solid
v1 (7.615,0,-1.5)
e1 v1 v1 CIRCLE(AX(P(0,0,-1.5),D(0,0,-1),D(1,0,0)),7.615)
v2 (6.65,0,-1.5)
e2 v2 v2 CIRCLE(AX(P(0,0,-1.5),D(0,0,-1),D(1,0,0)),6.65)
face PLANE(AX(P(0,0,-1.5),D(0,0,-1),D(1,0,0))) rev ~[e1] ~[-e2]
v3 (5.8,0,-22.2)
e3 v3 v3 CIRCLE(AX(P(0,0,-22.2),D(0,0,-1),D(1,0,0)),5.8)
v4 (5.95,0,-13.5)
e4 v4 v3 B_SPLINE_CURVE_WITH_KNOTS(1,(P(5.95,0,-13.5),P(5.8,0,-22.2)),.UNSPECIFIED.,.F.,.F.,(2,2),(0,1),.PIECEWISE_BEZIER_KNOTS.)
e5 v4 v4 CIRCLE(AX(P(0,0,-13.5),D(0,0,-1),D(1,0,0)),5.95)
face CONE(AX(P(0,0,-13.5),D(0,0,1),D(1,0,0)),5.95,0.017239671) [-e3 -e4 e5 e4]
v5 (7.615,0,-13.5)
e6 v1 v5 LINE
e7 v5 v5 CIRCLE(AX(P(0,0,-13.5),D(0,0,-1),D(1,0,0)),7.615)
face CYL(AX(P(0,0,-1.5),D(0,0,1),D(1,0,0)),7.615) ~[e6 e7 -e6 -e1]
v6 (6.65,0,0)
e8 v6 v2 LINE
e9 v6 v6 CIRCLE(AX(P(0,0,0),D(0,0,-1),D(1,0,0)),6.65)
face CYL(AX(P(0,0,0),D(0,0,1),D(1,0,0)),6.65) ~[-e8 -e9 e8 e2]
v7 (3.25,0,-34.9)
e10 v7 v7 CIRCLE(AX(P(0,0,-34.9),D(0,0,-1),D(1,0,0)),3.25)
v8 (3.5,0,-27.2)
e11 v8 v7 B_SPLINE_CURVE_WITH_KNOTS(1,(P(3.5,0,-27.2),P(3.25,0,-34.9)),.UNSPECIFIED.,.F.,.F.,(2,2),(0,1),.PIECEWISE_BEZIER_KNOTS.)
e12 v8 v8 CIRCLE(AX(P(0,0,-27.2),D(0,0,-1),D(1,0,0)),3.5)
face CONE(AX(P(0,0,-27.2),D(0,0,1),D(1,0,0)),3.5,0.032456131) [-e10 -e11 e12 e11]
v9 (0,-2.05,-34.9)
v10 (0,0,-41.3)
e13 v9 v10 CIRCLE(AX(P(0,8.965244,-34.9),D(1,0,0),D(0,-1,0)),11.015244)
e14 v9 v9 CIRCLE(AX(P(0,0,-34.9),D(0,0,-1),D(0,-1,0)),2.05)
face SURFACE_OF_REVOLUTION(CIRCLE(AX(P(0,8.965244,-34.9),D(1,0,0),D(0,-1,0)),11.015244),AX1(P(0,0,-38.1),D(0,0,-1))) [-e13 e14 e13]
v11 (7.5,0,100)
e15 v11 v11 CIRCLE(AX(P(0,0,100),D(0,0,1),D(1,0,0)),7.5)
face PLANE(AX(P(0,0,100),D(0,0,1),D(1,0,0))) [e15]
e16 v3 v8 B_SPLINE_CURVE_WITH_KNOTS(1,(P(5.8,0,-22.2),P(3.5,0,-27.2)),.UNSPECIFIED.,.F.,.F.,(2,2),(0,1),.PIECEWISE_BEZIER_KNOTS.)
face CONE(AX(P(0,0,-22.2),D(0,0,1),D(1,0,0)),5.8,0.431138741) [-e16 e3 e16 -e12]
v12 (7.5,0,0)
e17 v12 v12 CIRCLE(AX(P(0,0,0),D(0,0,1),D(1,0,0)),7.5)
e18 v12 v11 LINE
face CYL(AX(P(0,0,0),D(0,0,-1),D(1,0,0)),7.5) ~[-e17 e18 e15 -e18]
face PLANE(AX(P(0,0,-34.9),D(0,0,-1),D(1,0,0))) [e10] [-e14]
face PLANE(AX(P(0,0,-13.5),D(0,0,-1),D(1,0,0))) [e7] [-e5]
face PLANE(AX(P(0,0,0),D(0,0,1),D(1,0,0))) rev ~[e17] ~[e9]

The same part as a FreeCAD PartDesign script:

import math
import FreeCAD as App
import Part
import Sketcher
Q = App.Units.Quantity

doc = App.newDocument("Part")
body = doc.addObject("PartDesign::Body", "Body")

# Sketch on XY plane
sketch1 = body.newObject("Sketcher::SketchObject", "Sketch")
sketch1.AttachmentSupport = (doc.getObject("XY_Plane"), [""])
sketch1.MapMode = "FlatFace"
sketch1.addGeometry(Part.Circle(App.Vector(0, 0, 0), App.Vector(0, 0, 1), 8), False)
sketch1.addConstraint([
    Sketcher.Constraint("Coincident", 0, 3, -1, 1),
    Sketcher.Constraint("Diameter", 0, Q("15 mm")),
])
pad1 = body.newObject("PartDesign::Pad", "Pad")
pad1.Profile = sketch1
pad1.Length = 100

# Sketch on XY plane
sketch2 = body.newObject("Sketcher::SketchObject", "Sketch001")
sketch2.AttachmentSupport = (doc.getObject("XY_Plane"), [""])
sketch2.MapMode = "FlatFace"
sketch2.addGeometry(Part.Circle(App.Vector(0, 0, 0), App.Vector(0, 0, 1), 7), False)
sketch2.addConstraint([
    Sketcher.Constraint("Coincident", 0, 3, -1, 1),
    Sketcher.Constraint("Diameter", 0, Q("13.3 mm")),
])
pad2 = body.newObject("PartDesign::Pad", "Pad001")
pad2.Profile = sketch2
pad2.Length = 1.5
pad2.Reversed = True

# Sketch on XY plane
sketch3 = body.newObject("Sketcher::SketchObject", "Sketch002")
sketch3.AttachmentSupport = (doc.getObject("XY_Plane"), [""])
sketch3.MapMode = "FlatFace"
sketch3.AttachmentOffset = App.Placement(App.Vector(0, 0, -1.5), App.Rotation())
sketch3.addGeometry(Part.Circle(App.Vector(0, 0, 0), App.Vector(0, 0, 1), 8), False)
sketch3.addConstraint([
    Sketcher.Constraint("Coincident", 0, 3, -1, 1),
    Sketcher.Constraint("Diameter", 0, Q("15.23 mm")),
])
pad3 = body.newObject("PartDesign::Pad", "Pad002")
pad3.Profile = sketch3
pad3.Length = 12
pad3.Reversed = True

# Sketch on XY plane
sketch4 = body.newObject("Sketcher::SketchObject", "Sketch003")
sketch4.AttachmentSupport = (doc.getObject("XY_Plane"), [""])
sketch4.MapMode = "FlatFace"
sketch4.AttachmentOffset = App.Placement(App.Vector(0, 0, -13.5), App.Rotation())
sketch4.addGeometry(Part.Circle(App.Vector(0, 0, 0), App.Vector(0, 0, 1), 6), False)
sketch4.addConstraint([
    Sketcher.Constraint("Coincident", 0, 3, -1, 1),
    Sketcher.Constraint("Diameter", 0, Q("11.9 mm")),
])

# Sketch on XY plane
sketch5 = body.newObject("Sketcher::SketchObject", "Sketch004")
sketch5.AttachmentSupport = (doc.getObject("XY_Plane"), [""])
sketch5.MapMode = "FlatFace"
sketch5.AttachmentOffset = App.Placement(App.Vector(0, 0, -22.2), App.Rotation())
sketch5.addGeometry(Part.Circle(App.Vector(0, 0, 0), App.Vector(0, 0, 1), 6), False)
sketch5.addConstraint([
    Sketcher.Constraint("Coincident", 0, 3, -1, 1),
    Sketcher.Constraint("Diameter", 0, Q("11.6 mm")),
])

additiveloft = body.newObject("PartDesign::AdditiveLoft", "AdditiveLoft")
additiveloft.Profile = sketch4
additiveloft.Sections = [sketch5]

# Sketch on XY plane
sketch6 = body.newObject("Sketcher::SketchObject", "Sketch005")
sketch6.AttachmentSupport = (doc.getObject("XY_Plane"), [""])
sketch6.MapMode = "FlatFace"
sketch6.AttachmentOffset = App.Placement(App.Vector(0, 0, -22.2), App.Rotation())
sketch6.addGeometry(Part.Circle(App.Vector(0, 0, 0), App.Vector(0, 0, 1), 6), False)
sketch6.addConstraint([
    Sketcher.Constraint("Coincident", 0, 3, -1, 1),
    Sketcher.Constraint("Diameter", 0, Q("11.6 mm")),
])

# Sketch on XY plane
sketch7 = body.newObject("Sketcher::SketchObject", "Sketch006")
sketch7.AttachmentSupport = (doc.getObject("XY_Plane"), [""])
sketch7.MapMode = "FlatFace"
sketch7.AttachmentOffset = App.Placement(App.Vector(0, 0, -27.2), App.Rotation())
sketch7.addGeometry(Part.Circle(App.Vector(0, 0, 0), App.Vector(0, 0, 1), 3.5), False)
sketch7.addConstraint([
    Sketcher.Constraint("Coincident", 0, 3, -1, 1),
    Sketcher.Constraint("Diameter", 0, Q("7 mm")),
])

additiveloft2 = body.newObject("PartDesign::AdditiveLoft", "AdditiveLoft001")
additiveloft2.Profile = sketch6
additiveloft2.Sections = [sketch7]

# Sketch on XY plane
sketch8 = body.newObject("Sketcher::SketchObject", "Sketch007")
sketch8.AttachmentSupport = (doc.getObject("XY_Plane"), [""])
sketch8.MapMode = "FlatFace"
sketch8.AttachmentOffset = App.Placement(App.Vector(0, 0, -27.2), App.Rotation())
sketch8.addGeometry(Part.Circle(App.Vector(0, 0, 0), App.Vector(0, 0, 1), 3.5), False)
sketch8.addConstraint([
    Sketcher.Constraint("Coincident", 0, 3, -1, 1),
    Sketcher.Constraint("Diameter", 0, Q("7 mm")),
])

# Sketch on XY plane
sketch9 = body.newObject("Sketcher::SketchObject", "Sketch008")
sketch9.AttachmentSupport = (doc.getObject("XY_Plane"), [""])
sketch9.MapMode = "FlatFace"
sketch9.AttachmentOffset = App.Placement(App.Vector(0, 0, -34.9), App.Rotation())
sketch9.addGeometry(Part.Circle(App.Vector(0, 0, 0), App.Vector(0, 0, 1), 3.2), False)
sketch9.addConstraint([
    Sketcher.Constraint("Coincident", 0, 3, -1, 1),
    Sketcher.Constraint("Diameter", 0, Q("6.5 mm")),
])

additiveloft3 = body.newObject("PartDesign::AdditiveLoft", "AdditiveLoft002")
additiveloft3.Profile = sketch8
additiveloft3.Sections = [sketch9]

# Sketch on YZ plane
sketch10 = body.newObject("Sketcher::SketchObject", "Sketch009")
sketch10.AttachmentSupport = (doc.getObject("YZ_Plane"), [""])
sketch10.MapMode = "FlatFace"
sketch10.addGeometry([
    Part.LineSegment(App.Vector(0, -34.9, 0), App.Vector(-2, -34.9, 0)),
    Part.ArcOfCircle(Part.Circle(App.Vector(9, -34.9, 0), App.Vector(0, 0, 1), 11), math.radians(180), math.radians(216)),
    Part.LineSegment(App.Vector(0, -41.3, 0), App.Vector(0, -34.9, 0)),
], False)
sketch10.addConstraint([
    Sketcher.Constraint("Coincident", 0, 2, 1, 1),
    Sketcher.Constraint("Coincident", 1, 2, 2, 1),
    Sketcher.Constraint("Coincident", 2, 2, 0, 1),
    Sketcher.Constraint("Horizontal", 0),
    Sketcher.Constraint("Vertical", 2),
    Sketcher.Constraint("PointOnObject", 1, 2, -2),
    Sketcher.Constraint("Horizontal", 1, 3, 0, 2),
    Sketcher.Constraint("DistanceY", 2, 1, 2, 2, Q("6.4 mm")),
    Sketcher.Constraint("DistanceX", 0, 2, 0, 1, Q("2.05 mm")),
    Sketcher.Constraint("DistanceY", 1, 3, -1, 1, Q("34.9 mm")),
])
revolution = body.newObject("PartDesign::Revolution", "Revolution")
revolution.Profile = sketch10
revolution.ReferenceAxis = (sketch10, ["V_Axis"])
revolution.Angle = 360

doc.recompute()
